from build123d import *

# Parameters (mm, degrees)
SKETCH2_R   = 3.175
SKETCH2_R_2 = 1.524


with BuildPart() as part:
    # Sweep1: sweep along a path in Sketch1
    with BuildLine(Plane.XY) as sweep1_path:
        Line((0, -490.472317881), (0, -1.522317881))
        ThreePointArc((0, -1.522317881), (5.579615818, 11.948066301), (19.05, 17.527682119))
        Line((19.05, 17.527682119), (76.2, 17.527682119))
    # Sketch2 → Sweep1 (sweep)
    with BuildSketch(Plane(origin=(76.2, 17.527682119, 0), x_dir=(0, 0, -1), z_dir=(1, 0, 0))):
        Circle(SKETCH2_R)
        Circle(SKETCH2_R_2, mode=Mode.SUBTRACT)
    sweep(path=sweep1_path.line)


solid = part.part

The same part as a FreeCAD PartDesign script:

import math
import FreeCAD as App
import Part
import Sketcher

V = App.Vector
Q = App.Units.Quantity

doc = App.newDocument("Part")
body = doc.addObject("PartDesign::Body", "Body")

sketch1 = body.newObject("Sketcher::SketchObject", "Sketch")
sketch1.AttachmentSupport = (doc.getObject("YZ_Plane"), [""])
sketch1.MapMode = "FlatFace"
sketch1.AttachmentOffset = App.Placement(V(0, 0, 3 * 25.4), App.Rotation())
sketch1.addGeometry(Part.Circle(V(17.527682, 0, 0), V(0, 0, 1), 3.175), False)
sketch1.addGeometry(Part.Circle(V(17.527682, 0, 0), V(0, 0, 1), 1.524), False)
sketch1.addConstraint(Sketcher.Constraint("Coincident", 1, 3, 0, 3))
sketch1.addConstraint(Sketcher.Constraint("PointOnObject", 0, 3, -1))
sketch1.addConstraint(Sketcher.Constraint("Diameter", 0, Q("0.25 in")))
sketch1.addConstraint(Sketcher.Constraint("Diameter", 1, Q("0.12 in")))
sketch1.addConstraint(Sketcher.Constraint("DistanceX", -1, 1, 0, 3, 17.527682))

sketch2 = body.newObject("Sketcher::SketchObject", "Sketch001")
sketch2.AttachmentSupport = (doc.getObject("XY_Plane"), [""])
sketch2.MapMode = "FlatFace"
sketch2.addGeometry(Part.LineSegment(V(0, -490.472318, 0), V(0, -1.522318, 0)), False)
sketch2.addGeometry(Part.ArcOfCircle(Part.Circle(V(19.05, -1.522318, 0), V(0, 0, 1), 19.05), math.radians(90), math.radians(180)), False)
sketch2.addGeometry(Part.LineSegment(V(19.05, 17.527682, 0), V(76.2, 17.527682, 0)), False)
sketch2.addConstraint(Sketcher.Constraint("Tangent", 0, 2, 1, 2))
sketch2.addConstraint(Sketcher.Constraint("Tangent", 1, 1, 2, 1))
sketch2.addConstraint(Sketcher.Constraint("Vertical", 0))
sketch2.addConstraint(Sketcher.Constraint("Horizontal", 2))
sketch2.addConstraint(Sketcher.Constraint("PointOnObject", 0, 1, -2))
sketch2.addConstraint(Sketcher.Constraint("Radius", 1, Q("0.75 in")))
sketch2.addConstraint(Sketcher.Constraint("DistanceX", -1, 1, 2, 2, Q("3 in")))
sketch2.addConstraint(Sketcher.Constraint("DistanceY", 0, 1, 1, 1, Q("20 in")))
sketch2.addConstraint(Sketcher.Constraint("DistanceY", 1, 3, -1, 1, 1.522318))
doc.recompute()

additivepipe = body.newObject("PartDesign::AdditivePipe", "AdditivePipe")
additivepipe.Profile = sketch1
additivepipe.Spine = (sketch2, ["Edge1", "Edge2", "Edge3"])

doc.recompute()
